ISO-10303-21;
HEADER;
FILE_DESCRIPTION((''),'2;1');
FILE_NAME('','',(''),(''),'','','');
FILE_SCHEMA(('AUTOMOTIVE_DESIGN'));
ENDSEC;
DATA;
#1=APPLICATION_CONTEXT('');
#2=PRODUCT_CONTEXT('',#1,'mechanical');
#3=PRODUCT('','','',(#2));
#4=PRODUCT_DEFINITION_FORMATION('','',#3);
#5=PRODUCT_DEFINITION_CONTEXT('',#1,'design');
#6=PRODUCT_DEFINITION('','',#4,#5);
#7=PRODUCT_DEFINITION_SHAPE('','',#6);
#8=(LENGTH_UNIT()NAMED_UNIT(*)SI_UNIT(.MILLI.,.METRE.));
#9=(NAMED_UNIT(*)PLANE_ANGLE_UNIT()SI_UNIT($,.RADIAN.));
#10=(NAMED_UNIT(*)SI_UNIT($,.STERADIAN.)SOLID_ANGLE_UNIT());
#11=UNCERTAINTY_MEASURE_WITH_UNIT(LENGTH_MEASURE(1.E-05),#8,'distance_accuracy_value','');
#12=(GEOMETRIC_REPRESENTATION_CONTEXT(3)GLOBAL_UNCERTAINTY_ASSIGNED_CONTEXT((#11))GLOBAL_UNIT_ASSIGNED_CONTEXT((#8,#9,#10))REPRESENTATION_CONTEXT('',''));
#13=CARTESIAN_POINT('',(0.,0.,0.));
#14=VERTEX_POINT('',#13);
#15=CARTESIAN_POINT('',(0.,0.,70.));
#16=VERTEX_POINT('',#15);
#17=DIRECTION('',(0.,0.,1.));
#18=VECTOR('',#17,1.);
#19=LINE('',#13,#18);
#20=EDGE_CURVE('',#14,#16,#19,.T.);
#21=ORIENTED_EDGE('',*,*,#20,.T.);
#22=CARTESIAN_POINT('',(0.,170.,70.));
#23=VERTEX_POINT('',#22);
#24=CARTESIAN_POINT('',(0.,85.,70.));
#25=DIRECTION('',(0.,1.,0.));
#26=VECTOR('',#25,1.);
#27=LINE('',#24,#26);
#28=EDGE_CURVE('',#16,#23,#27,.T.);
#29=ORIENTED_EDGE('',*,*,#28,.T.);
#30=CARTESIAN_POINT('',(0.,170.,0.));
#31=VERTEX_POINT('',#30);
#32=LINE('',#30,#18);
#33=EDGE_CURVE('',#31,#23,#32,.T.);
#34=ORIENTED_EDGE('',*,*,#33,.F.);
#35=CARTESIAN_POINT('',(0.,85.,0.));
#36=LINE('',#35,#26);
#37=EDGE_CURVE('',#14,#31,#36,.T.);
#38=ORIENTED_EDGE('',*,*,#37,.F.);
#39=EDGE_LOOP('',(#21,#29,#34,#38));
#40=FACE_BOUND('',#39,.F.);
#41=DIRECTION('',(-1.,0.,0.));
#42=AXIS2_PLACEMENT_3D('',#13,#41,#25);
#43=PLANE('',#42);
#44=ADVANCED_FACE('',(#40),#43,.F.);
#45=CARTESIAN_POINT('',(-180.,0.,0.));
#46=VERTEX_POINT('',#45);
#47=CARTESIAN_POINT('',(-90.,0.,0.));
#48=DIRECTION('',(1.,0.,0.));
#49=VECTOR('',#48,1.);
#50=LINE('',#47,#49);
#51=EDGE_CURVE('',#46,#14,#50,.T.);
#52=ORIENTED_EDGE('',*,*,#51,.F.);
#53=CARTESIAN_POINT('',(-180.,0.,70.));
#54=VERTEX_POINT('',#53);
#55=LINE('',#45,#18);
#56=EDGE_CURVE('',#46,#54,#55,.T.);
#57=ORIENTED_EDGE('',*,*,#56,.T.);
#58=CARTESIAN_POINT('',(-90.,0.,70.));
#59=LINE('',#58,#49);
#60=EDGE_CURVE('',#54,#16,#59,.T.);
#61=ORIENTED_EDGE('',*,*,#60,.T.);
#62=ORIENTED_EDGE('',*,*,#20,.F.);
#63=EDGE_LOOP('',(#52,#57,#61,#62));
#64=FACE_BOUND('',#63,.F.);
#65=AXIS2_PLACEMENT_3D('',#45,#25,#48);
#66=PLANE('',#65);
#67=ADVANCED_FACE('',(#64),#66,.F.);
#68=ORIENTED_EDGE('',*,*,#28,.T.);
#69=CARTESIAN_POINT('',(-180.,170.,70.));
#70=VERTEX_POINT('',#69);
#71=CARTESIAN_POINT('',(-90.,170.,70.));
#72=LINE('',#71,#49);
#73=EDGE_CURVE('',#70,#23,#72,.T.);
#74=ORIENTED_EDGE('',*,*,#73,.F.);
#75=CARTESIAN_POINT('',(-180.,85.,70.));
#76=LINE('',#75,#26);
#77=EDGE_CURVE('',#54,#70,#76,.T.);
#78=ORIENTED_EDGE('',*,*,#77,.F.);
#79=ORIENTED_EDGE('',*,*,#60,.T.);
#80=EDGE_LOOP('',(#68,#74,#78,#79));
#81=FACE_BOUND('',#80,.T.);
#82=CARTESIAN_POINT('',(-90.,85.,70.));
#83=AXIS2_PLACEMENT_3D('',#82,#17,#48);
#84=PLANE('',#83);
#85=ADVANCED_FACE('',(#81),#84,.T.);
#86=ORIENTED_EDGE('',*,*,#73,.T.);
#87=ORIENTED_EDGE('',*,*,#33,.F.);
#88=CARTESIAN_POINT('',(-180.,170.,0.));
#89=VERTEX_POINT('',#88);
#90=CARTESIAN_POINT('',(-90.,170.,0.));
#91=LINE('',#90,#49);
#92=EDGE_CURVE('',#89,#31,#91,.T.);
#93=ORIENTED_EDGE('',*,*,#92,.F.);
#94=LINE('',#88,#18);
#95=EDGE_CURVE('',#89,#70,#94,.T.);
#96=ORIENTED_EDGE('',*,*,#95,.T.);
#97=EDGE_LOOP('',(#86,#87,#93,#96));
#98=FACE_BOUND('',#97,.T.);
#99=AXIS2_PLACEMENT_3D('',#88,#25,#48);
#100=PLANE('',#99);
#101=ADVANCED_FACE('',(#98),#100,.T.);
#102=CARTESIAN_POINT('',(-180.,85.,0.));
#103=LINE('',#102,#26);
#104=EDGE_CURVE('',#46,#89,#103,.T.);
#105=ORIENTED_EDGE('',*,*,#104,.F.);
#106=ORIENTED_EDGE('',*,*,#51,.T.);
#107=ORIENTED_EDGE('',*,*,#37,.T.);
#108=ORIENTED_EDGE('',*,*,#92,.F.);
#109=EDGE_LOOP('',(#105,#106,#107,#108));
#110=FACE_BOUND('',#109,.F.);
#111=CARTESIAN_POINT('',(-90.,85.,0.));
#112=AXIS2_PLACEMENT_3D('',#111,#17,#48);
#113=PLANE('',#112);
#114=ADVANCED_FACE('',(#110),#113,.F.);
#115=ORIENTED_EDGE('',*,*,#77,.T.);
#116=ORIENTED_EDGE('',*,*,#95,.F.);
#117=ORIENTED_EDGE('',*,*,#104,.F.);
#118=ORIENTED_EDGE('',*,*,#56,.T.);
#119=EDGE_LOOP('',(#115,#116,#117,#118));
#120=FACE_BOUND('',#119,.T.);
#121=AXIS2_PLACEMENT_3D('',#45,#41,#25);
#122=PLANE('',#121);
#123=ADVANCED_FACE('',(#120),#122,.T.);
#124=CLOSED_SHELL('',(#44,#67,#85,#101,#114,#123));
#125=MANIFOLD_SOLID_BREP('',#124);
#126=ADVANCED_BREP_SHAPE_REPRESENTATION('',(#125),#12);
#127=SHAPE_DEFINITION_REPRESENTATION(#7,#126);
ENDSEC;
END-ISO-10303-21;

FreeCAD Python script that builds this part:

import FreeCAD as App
import Part
import Sketcher


def add_polygon(sketch, points):
    """Adds a closed chain of lines whose ends are joined by coincident constraints."""
    first, n = sketch.GeometryCount, len(points)
    for a, b in zip(points, points[1:] + points[:1]):
        sketch.addGeometry(Part.LineSegment(App.Vector(*a, 0), App.Vector(*b, 0)), False)
    for i in range(n):
        sketch.addConstraint(Sketcher.Constraint("Coincident", first + i, 2, first + (i + 1) % n, 1))

doc = App.newDocument("Part")
body = doc.addObject("PartDesign::Body", "Body")

# Sketch on XY plane
sketch1 = body.newObject("Sketcher::SketchObject", "Sketch")
sketch1.AttachmentSupport = (doc.getObject("XY_Plane"), [""])
sketch1.MapMode = "FlatFace"
add_polygon(sketch1, [(-180, 170), (-180, 0), (0, 0), (0, 170)])  # lines 0-3
sketch1.addConstraint(Sketcher.Constraint("Vertical", 0))
sketch1.addConstraint(Sketcher.Constraint("Horizontal", 1))
sketch1.addConstraint(Sketcher.Constraint("Vertical", 2))
sketch1.addConstraint(Sketcher.Constraint("Horizontal", 3))
sketch1.addConstraint(Sketcher.Constraint("Coincident", 1, 2, -1, 1))
sketch1.addConstraint(Sketcher.Constraint("DistanceX", 1, 1, 1, 2, 180.0))
sketch1.addConstraint(Sketcher.Constraint("DistanceY", 0, 2, 0, 1, 170.0))
pad1 = body.newObject("PartDesign::Pad", "Pad")
pad1.Profile = sketch1
pad1.Length = 70

doc.recompute()
